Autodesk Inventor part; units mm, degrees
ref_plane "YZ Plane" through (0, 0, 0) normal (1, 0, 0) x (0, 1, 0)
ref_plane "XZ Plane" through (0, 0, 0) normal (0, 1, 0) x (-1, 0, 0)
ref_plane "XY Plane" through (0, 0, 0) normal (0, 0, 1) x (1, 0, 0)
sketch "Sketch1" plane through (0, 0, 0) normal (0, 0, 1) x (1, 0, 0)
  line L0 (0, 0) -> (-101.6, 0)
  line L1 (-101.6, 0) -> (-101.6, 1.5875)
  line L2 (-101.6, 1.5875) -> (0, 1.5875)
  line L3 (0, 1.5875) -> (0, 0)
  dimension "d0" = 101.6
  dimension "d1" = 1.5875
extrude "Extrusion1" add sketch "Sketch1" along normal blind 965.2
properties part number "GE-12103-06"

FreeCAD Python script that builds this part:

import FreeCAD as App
import Part
import Sketcher
from FreeCAD import Vector
Q = App.Units.Quantity


def add_polygon(sketch, points):
    """Adds a closed chain of lines whose ends are joined by coincident constraints."""
    first, n = sketch.GeometryCount, len(points)
    for a, b in zip(points, points[1:] + points[:1]):
        sketch.addGeometry(Part.LineSegment(App.Vector(*a, 0), App.Vector(*b, 0)), False)
    for i in range(n):
        sketch.addConstraint(Sketcher.Constraint("Coincident", first + i, 2, first + (i + 1) % n, 1))

doc = App.newDocument("Part")
body = doc.addObject("PartDesign::Body", "Body")

sketch1 = body.newObject("Sketcher::SketchObject", "Sketch")
sketch1.AttachmentSupport = (doc.getObject("XY_Plane"), [""])
sketch1.MapMode = "FlatFace"
add_polygon(sketch1, [(-101.6, 0), (0, 0), (0, 1.6), (-101.6, 1.6)])
sketch1.addConstraint([
    Sketcher.Constraint("Horizontal", 0),
    Sketcher.Constraint("Vertical", 1),
    Sketcher.Constraint("Horizontal", 2),
    Sketcher.Constraint("Vertical", 3),
    Sketcher.Constraint("Coincident", 0, 2, -1, 1),
    Sketcher.Constraint("DistanceX", 0, 1, 0, 2, Q("4 in")),
    Sketcher.Constraint("DistanceY", 1, 1, 1, 2, Q("0.0625 in")),
])
pad1 = body.newObject("PartDesign::Pad", "Pad")
pad1.Profile = sketch1
pad1.Length = Q("38 in")

doc.recompute()
